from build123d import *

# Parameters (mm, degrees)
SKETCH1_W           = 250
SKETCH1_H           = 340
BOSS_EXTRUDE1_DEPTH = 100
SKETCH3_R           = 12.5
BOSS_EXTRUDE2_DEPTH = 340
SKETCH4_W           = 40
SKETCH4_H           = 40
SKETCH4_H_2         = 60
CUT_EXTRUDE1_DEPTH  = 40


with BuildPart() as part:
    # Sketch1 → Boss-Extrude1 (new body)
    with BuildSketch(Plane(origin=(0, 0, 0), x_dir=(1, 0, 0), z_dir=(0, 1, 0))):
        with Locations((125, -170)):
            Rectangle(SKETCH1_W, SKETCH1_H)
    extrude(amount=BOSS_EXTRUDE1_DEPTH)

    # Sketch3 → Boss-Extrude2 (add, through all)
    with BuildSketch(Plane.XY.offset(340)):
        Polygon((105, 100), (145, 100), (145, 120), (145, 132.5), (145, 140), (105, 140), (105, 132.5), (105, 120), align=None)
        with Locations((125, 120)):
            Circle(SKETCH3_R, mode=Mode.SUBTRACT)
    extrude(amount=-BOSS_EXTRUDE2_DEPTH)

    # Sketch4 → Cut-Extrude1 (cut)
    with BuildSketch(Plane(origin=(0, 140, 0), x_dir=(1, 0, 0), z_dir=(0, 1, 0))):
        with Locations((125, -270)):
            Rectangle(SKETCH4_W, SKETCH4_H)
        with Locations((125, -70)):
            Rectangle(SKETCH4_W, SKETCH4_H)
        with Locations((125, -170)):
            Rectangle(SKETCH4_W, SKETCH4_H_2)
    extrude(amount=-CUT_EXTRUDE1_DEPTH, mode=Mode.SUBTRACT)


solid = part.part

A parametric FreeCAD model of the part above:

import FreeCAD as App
import Part
import Sketcher

doc = App.newDocument("Part")
params = doc.addObject("Spreadsheet::Sheet", "Params")
for row, (alias, value) in enumerate([
    ("sketch1_width", "250 mm"),
    ("sketch1_height", "340 mm"),
    ("pad1_length", "100 mm"),
    ("sketch2_diameter", "25 mm"),
    ("sketch2_width", "40 mm"),
    ("pad2_length", "340 mm"),
    ("sketch3_width", "40 mm"),
    ("sketch3_height", "60 mm"),
    ("pocket1_length", "40 mm"),
], start=1):
    params.set(f"A{row}", alias)
    params.set(f"B{row}", "=" + value)
    params.setAlias(f"B{row}", alias)

body = doc.addObject("PartDesign::Body", "Body")

sketch1 = body.newObject("Sketcher::SketchObject", "Sketch")
sketch1.AttachmentSupport = (doc.getObject("XZ_Plane"), [""])
sketch1.MapMode = "FlatFace"
sketch1.addGeometry(Part.LineSegment(App.Vector(0, 0, 0), App.Vector(0, 340, 0)), False)
sketch1.addGeometry(Part.LineSegment(App.Vector(0, 340, 0), App.Vector(250, 340, 0)), False)
sketch1.addGeometry(Part.LineSegment(App.Vector(250, 340, 0), App.Vector(250, 0, 0)), False)
sketch1.addGeometry(Part.LineSegment(App.Vector(250, 0, 0), App.Vector(0, 0, 0)), False)
sketch1.addConstraint(Sketcher.Constraint("Coincident", 0, 2, 1, 1))
sketch1.addConstraint(Sketcher.Constraint("Coincident", 1, 2, 2, 1))
sketch1.addConstraint(Sketcher.Constraint("Coincident", 2, 2, 3, 1))
sketch1.addConstraint(Sketcher.Constraint("Coincident", 3, 2, 0, 1))
sketch1.addConstraint(Sketcher.Constraint("Vertical", 0))
sketch1.addConstraint(Sketcher.Constraint("Horizontal", 1))
sketch1.addConstraint(Sketcher.Constraint("Vertical", 2))
sketch1.addConstraint(Sketcher.Constraint("Horizontal", 3))
sketch1.addConstraint(Sketcher.Constraint("Coincident", 3, 2, -1, 1))
sketch1.addConstraint(Sketcher.Constraint("DistanceX", 1, 1, 1, 2, 250.0))
sketch1.addConstraint(Sketcher.Constraint("DistanceY", 0, 1, 0, 2, 340.0))
sketch1.setExpression("Constraints[9]", "Params.sketch1_width")
sketch1.setExpression("Constraints[10]", "Params.sketch1_height")
pad1 = body.newObject("PartDesign::Pad", "Pad")
pad1.Profile = sketch1
pad1.setExpression("Length", "Params.pad1_length")
pad1.Reversed = True

sketch2 = body.newObject("Sketcher::SketchObject", "Sketch001")
sketch2.AttachmentSupport = (doc.getObject("XY_Plane"), [""])
sketch2.MapMode = "FlatFace"
sketch2.AttachmentOffset = App.Placement(App.Vector(0, 0, 340), App.Rotation())
sketch2.addGeometry(Part.LineSegment(App.Vector(105, 100, 0), App.Vector(145, 100, 0)), False)
sketch2.addGeometry(Part.LineSegment(App.Vector(145, 100, 0), App.Vector(145, 140, 0)), False)
sketch2.addGeometry(Part.LineSegment(App.Vector(145, 140, 0), App.Vector(105, 140, 0)), False)
sketch2.addGeometry(Part.LineSegment(App.Vector(105, 140, 0), App.Vector(105, 100, 0)), False)
sketch2.addGeometry(Part.Circle(App.Vector(125, 120, 0), App.Vector(0, 0, 1), 12), False)
sketch2.addConstraint(Sketcher.Constraint("Coincident", 0, 2, 1, 1))
sketch2.addConstraint(Sketcher.Constraint("Coincident", 1, 2, 2, 1))
sketch2.addConstraint(Sketcher.Constraint("Coincident", 2, 2, 3, 1))
sketch2.addConstraint(Sketcher.Constraint("Coincident", 3, 2, 0, 1))
sketch2.addConstraint(Sketcher.Constraint("Horizontal", 0))
sketch2.addConstraint(Sketcher.Constraint("Vertical", 1))
sketch2.addConstraint(Sketcher.Constraint("Horizontal", 2))
sketch2.addConstraint(Sketcher.Constraint("Vertical", 3))
sketch2.addConstraint(Sketcher.Constraint("Equal", 2, 1))
sketch2.addConstraint(Sketcher.Constraint("Diameter", 4, 25.0))
sketch2.addConstraint(Sketcher.Constraint("DistanceX", 0, 1, 0, 2, 40.0))
sketch2.addConstraint(Sketcher.Constraint("DistanceX", -1, 1, 4, 3, 125.0))
sketch2.addConstraint(Sketcher.Constraint("DistanceY", -1, 1, 4, 3, 120.0))
sketch2.addConstraint(Sketcher.Constraint("DistanceX", -1, 1, 0, 2, 145.0))
sketch2.addConstraint(Sketcher.Constraint("DistanceY", -1, 1, 0, 2, 100.0))
sketch2.setExpression("Constraints[9]", "Params.sketch2_diameter")
sketch2.setExpression("Constraints[10]", "Params.sketch2_width")
pad2 = body.newObject("PartDesign::Pad", "Pad001")
pad2.Profile = sketch2
pad2.setExpression("Length", "Params.pad2_length")
pad2.Reversed = True

sketch3 = body.newObject("Sketcher::SketchObject", "Sketch002")
sketch3.AttachmentSupport = (doc.getObject("XZ_Plane"), [""])
sketch3.MapMode = "FlatFace"
sketch3.AttachmentOffset = App.Placement(App.Vector(0, 0, -140), App.Rotation())
sketch3.addGeometry(Part.LineSegment(App.Vector(105, 250, 0), App.Vector(105, 290, 0)), False)
sketch3.addGeometry(Part.LineSegment(App.Vector(105, 290, 0), App.Vector(145, 290, 0)), False)
sketch3.addGeometry(Part.LineSegment(App.Vector(145, 290, 0), App.Vector(145, 250, 0)), False)
sketch3.addGeometry(Part.LineSegment(App.Vector(145, 250, 0), App.Vector(105, 250, 0)), False)
sketch3.addGeometry(Part.LineSegment(App.Vector(105, 50, 0), App.Vector(105, 90, 0)), False)
sketch3.addGeometry(Part.LineSegment(App.Vector(105, 90, 0), App.Vector(145, 90, 0)), False)
sketch3.addGeometry(Part.LineSegment(App.Vector(145, 90, 0), App.Vector(145, 50, 0)), False)
sketch3.addGeometry(Part.LineSegment(App.Vector(145, 50, 0), App.Vector(105, 50, 0)), False)
sketch3.addGeometry(Part.LineSegment(App.Vector(105, 140, 0), App.Vector(105, 200, 0)), False)
sketch3.addGeometry(Part.LineSegment(App.Vector(105, 200, 0), App.Vector(145, 200, 0)), False)
sketch3.addGeometry(Part.LineSegment(App.Vector(145, 200, 0), App.Vector(145, 140, 0)), False)
sketch3.addGeometry(Part.LineSegment(App.Vector(145, 140, 0), App.Vector(105, 140, 0)), False)
sketch3.addConstraint(Sketcher.Constraint("Coincident", 0, 2, 1, 1))
sketch3.addConstraint(Sketcher.Constraint("Coincident", 1, 2, 2, 1))
sketch3.addConstraint(Sketcher.Constraint("Coincident", 2, 2, 3, 1))
sketch3.addConstraint(Sketcher.Constraint("Coincident", 3, 2, 0, 1))
sketch3.addConstraint(Sketcher.Constraint("Coincident", 4, 2, 5, 1))
sketch3.addConstraint(Sketcher.Constraint("Coincident", 5, 2, 6, 1))
sketch3.addConstraint(Sketcher.Constraint("Coincident", 6, 2, 7, 1))
sketch3.addConstraint(Sketcher.Constraint("Coincident", 7, 2, 4, 1))
sketch3.addConstraint(Sketcher.Constraint("Coincident", 8, 2, 9, 1))
sketch3.addConstraint(Sketcher.Constraint("Coincident", 9, 2, 10, 1))
sketch3.addConstraint(Sketcher.Constraint("Coincident", 10, 2, 11, 1))
sketch3.addConstraint(Sketcher.Constraint("Coincident", 11, 2, 8, 1))
sketch3.addConstraint(Sketcher.Constraint("Vertical", 0))
sketch3.addConstraint(Sketcher.Constraint("Horizontal", 1))
sketch3.addConstraint(Sketcher.Constraint("Vertical", 2))
sketch3.addConstraint(Sketcher.Constraint("Horizontal", 3))
sketch3.addConstraint(Sketcher.Constraint("Vertical", 4))
sketch3.addConstraint(Sketcher.Constraint("Horizontal", 5))
sketch3.addConstraint(Sketcher.Constraint("Vertical", 6))
sketch3.addConstraint(Sketcher.Constraint("Horizontal", 7))
sketch3.addConstraint(Sketcher.Constraint("Vertical", 8))
sketch3.addConstraint(Sketcher.Constraint("Horizontal", 9))
sketch3.addConstraint(Sketcher.Constraint("Vertical", 10))
sketch3.addConstraint(Sketcher.Constraint("Horizontal", 11))
sketch3.addConstraint(Sketcher.Constraint("Vertical", 3, 2, 4, 2))
sketch3.addConstraint(Sketcher.Constraint("Vertical", 2, 2, 5, 2))
sketch3.addConstraint(Sketcher.Constraint("Vertical", 7, 2, 8, 2))
sketch3.addConstraint(Sketcher.Constraint("Vertical", 6, 2, 9, 2))
sketch3.addConstraint(Sketcher.Constraint("Equal", 11, 0))
sketch3.addConstraint(Sketcher.Constraint("Equal", 2, 4))
sketch3.addConstraint(Sketcher.Constraint("DistanceX", 1, 1, 1, 2, 40.0))
sketch3.addConstraint(Sketcher.Constraint("DistanceY", 8, 1, 8, 2, 60.0))
sketch3.addConstraint(Sketcher.Constraint("DistanceX", -1, 1, 0, 2, 105.0))
sketch3.addConstraint(Sketcher.Constraint("DistanceY", -1, 1, 0, 2, 290.0))
sketch3.addConstraint(Sketcher.Constraint("DistanceY", -1, 1, 4, 2, 90.0))
sketch3.addConstraint(Sketcher.Constraint("DistanceY", -1, 1, 8, 2, 200.0))
sketch3.setExpression("Constraints[30]", "Params.sketch3_width")
sketch3.setExpression("Constraints[31]", "Params.sketch3_height")
pocket1 = body.newObject("PartDesign::Pocket", "Pocket")
pocket1.Profile = sketch3
pocket1.setExpression("Length", "Params.pocket1_length")
pocket1.Reversed = True

doc.recompute()
